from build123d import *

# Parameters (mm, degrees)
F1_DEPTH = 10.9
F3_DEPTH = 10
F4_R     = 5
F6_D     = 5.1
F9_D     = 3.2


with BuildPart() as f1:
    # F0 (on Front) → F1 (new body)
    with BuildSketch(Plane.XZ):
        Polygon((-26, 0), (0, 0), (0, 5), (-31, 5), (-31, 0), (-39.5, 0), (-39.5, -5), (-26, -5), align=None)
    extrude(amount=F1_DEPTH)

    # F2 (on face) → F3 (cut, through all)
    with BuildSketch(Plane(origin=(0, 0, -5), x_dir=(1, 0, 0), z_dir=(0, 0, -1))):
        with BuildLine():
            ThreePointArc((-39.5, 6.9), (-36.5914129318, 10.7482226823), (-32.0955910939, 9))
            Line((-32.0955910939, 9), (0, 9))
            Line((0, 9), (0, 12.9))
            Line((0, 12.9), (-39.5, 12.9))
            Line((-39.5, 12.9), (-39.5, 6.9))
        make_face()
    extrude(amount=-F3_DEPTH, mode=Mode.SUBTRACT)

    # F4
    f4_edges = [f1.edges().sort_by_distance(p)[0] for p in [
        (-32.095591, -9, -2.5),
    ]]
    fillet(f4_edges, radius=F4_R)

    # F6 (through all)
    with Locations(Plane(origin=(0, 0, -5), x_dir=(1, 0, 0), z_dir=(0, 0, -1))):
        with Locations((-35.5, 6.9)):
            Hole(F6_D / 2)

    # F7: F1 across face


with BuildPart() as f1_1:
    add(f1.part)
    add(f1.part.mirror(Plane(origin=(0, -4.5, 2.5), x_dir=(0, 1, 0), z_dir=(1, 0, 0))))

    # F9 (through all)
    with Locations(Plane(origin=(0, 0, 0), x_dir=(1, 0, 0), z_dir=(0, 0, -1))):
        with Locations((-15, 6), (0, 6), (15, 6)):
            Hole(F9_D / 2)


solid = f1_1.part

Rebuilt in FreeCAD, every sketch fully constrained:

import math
import FreeCAD as App
import Part
import Sketcher

V = App.Vector


def edges_at(feature, points):
    """Names of the edges that pass closest to the given points."""
    edges = feature.Shape.Edges
    near = lambda p: min(range(len(edges)), key=lambda i: edges[i].distToShape(Part.Vertex(*p))[0])
    return sorted({f"Edge{near(p) + 1}" for p in points})

doc = App.newDocument("Part")
params = doc.addObject("Spreadsheet::Sheet", "Params")
for row, (alias, value) in enumerate([
    ("sketch1_width", "26 mm"),
    ("sketch1_width2", "31 mm"),
    ("sketch1_height", "5 mm"),
    ("sketch1_width3", "8.5 mm"),
    ("pad1_length", "10.9 mm"),
    ("sketch2_radius", "4 mm"),
    ("sketch2_height", "6 mm"),
    ("sketch2_width", "39.5 mm"),
    ("sketch2_height2", "3.9 mm"),
    ("fillet_radius", "5 mm"),
    ("sketch3_diameter", "5.1 mm"),
    ("hole_diameter", "5.1 mm"),
    ("sketch4_diameter", "3.2 mm"),
    ("hole2_diameter", "3.2 mm"),
], start=1):
    params.set(f"A{row}", alias)
    params.set(f"B{row}", "=" + value)
    params.setAlias(f"B{row}", alias)

body = doc.addObject("PartDesign::Body", "Body")

# Sketch on XZ plane
sketch1 = doc.addObject("Sketcher::SketchObject", "Sketch")
body.addObject(sketch1)
sketch1.AttachmentSupport = (doc.XZ_Plane, [""])
sketch1.MapMode = "FlatFace"
sketch1.addGeometry([
    Part.LineSegment(V(-26, 0, 0), V(0, 0, 0)),  # 0
    Part.LineSegment(V(0, 0, 0), V(0, 5, 0)),  # 1
    Part.LineSegment(V(0, 5, 0), V(-31, 5, 0)),  # 2
    Part.LineSegment(V(-31, 5, 0), V(-31, 0, 0)),  # 3
    Part.LineSegment(V(-31, 0, 0), V(-40, 0, 0)),  # 4
    Part.LineSegment(V(-40, 0, 0), V(-40, -5, 0)),  # 5
    Part.LineSegment(V(-40, -5, 0), V(-26, -5, 0)),  # 6
    Part.LineSegment(V(-26, -5, 0), V(-26, 0, 0)),  # 7
], False)
sketch1.addConstraint([
    Sketcher.Constraint("Coincident", 0, 2, 1, 1),
    Sketcher.Constraint("Coincident", 1, 2, 2, 1),
    Sketcher.Constraint("Coincident", 2, 2, 3, 1),
    Sketcher.Constraint("Coincident", 3, 2, 4, 1),
    Sketcher.Constraint("Coincident", 4, 2, 5, 1),
    Sketcher.Constraint("Coincident", 5, 2, 6, 1),
    Sketcher.Constraint("Coincident", 6, 2, 7, 1),
    Sketcher.Constraint("Coincident", 7, 2, 0, 1),
    Sketcher.Constraint("Horizontal", 0),
    Sketcher.Constraint("Vertical", 1),
    Sketcher.Constraint("Horizontal", 2),
    Sketcher.Constraint("Vertical", 3),
    Sketcher.Constraint("Horizontal", 4),
    Sketcher.Constraint("Vertical", 5),
    Sketcher.Constraint("Horizontal", 6),
    Sketcher.Constraint("Vertical", 7),
    Sketcher.Constraint("Coincident", 0, 2, -1, 1),
    Sketcher.Constraint("PointOnObject", 3, 2, -1),
    Sketcher.Constraint("Equal", 3, 5),
    Sketcher.Constraint("DistanceX", 0, 1, 0, 2, 26.0),
    Sketcher.Constraint("DistanceX", 2, 2, 2, 1, 31.0),
    Sketcher.Constraint("DistanceY", 1, 1, 1, 2, 5.0),
    Sketcher.Constraint("DistanceX", 4, 2, 4, 1, 8.5),
])
sketch1.setExpression("Constraints[19]", "Params.sketch1_width")
sketch1.setExpression("Constraints[20]", "Params.sketch1_width2")
sketch1.setExpression("Constraints[21]", "Params.sketch1_height")
sketch1.setExpression("Constraints[22]", "Params.sketch1_width3")
pad1 = doc.addObject("PartDesign::Pad", "Pad")
body.addObject(pad1)
pad1.Profile = sketch1
pad1.setExpression("Length", "Params.pad1_length")

# Sketch on XY plane
sketch2 = doc.addObject("Sketcher::SketchObject", "Sketch001")
body.addObject(sketch2)
sketch2.AttachmentSupport = (doc.XY_Plane, [""])
sketch2.MapMode = "FlatFace"
sketch2.AttachmentOffset = App.Placement(V(0, 0, -5), App.Rotation())
sketch2.addGeometry([
    Part.ArcOfCircle(Part.Circle(V(-35.5, -6.9, 0), V(0, 0, 1), 4), math.radians(180), math.radians(328)),  # 0
    Part.LineSegment(V(-32.1, -9, 0), V(0, -9, 0)),  # 1
    Part.LineSegment(V(0, -9, 0), V(0, -12.9, 0)),  # 2
    Part.LineSegment(V(0, -12.9, 0), V(-39.5, -12.9, 0)),  # 3
    Part.LineSegment(V(-39.5, -12.9, 0), V(-39.5, -6.9, 0)),  # 4
], False)
sketch2.addConstraint([
    Sketcher.Constraint("Coincident", 0, 2, 1, 1),
    Sketcher.Constraint("Coincident", 1, 2, 2, 1),
    Sketcher.Constraint("Coincident", 2, 2, 3, 1),
    Sketcher.Constraint("Coincident", 3, 2, 4, 1),
    Sketcher.Constraint("Tangent", 4, 2, 0, 1),
    Sketcher.Constraint("Horizontal", 1),
    Sketcher.Constraint("Vertical", 2),
    Sketcher.Constraint("Horizontal", 3),
    Sketcher.Constraint("Vertical", 4),
    Sketcher.Constraint("PointOnObject", 1, 2, -2),
    Sketcher.Constraint("Radius", 0, 4.0),
    Sketcher.Constraint("DistanceY", 4, 1, 4, 2, 6.0),
    Sketcher.Constraint("DistanceX", 3, 2, 3, 1, 39.5),
    Sketcher.Constraint("DistanceY", 2, 2, 2, 1, 3.9),
    Sketcher.Constraint("DistanceY", 0, 2, -1, 1, 9.0),
])
sketch2.setExpression("Constraints[10]", "Params.sketch2_radius")
sketch2.setExpression("Constraints[11]", "Params.sketch2_height")
sketch2.setExpression("Constraints[12]", "Params.sketch2_width")
sketch2.setExpression("Constraints[13]", "Params.sketch2_height2")
pocket1 = doc.addObject("PartDesign::Pocket", "Pocket")
body.addObject(pocket1)
pocket1.Profile = sketch2
pocket1.Type = "ThroughAll"
pocket1.Reversed = True
doc.recompute()

fillet = doc.addObject("PartDesign::Fillet", "Fillet")
body.addObject(fillet)
fillet.Base = (pocket1, edges_at(pocket1, [(-32.096, -9, -2.5)]))
fillet.setExpression("Radius", "Params.fillet_radius")

# Sketch on XY plane
sketch3 = doc.addObject("Sketcher::SketchObject", "Sketch002")
body.addObject(sketch3)
sketch3.AttachmentSupport = (doc.XY_Plane, [""])
sketch3.MapMode = "FlatFace"
sketch3.AttachmentOffset = App.Placement(V(0, 0, -5), App.Rotation())
sketch3.addGeometry(Part.Circle(V(-35.5, -6.9, 0), V(0, 0, 1), 2.5), False)
sketch3.addConstraint([
    Sketcher.Constraint("Diameter", 0, 5.1),
    Sketcher.Constraint("DistanceX", 0, 3, -1, 1, 35.5),
    Sketcher.Constraint("DistanceY", 0, 3, -1, 1, 6.9),
])
sketch3.setExpression("Constraints[0]", "Params.sketch3_diameter")
doc.recompute()
hole = doc.addObject("PartDesign::Hole", "Hole")
body.addObject(hole)
hole.Profile = sketch3
hole.ThreadType = "None"
hole.setExpression("Diameter", "Params.hole_diameter")
hole.DepthType = "ThroughAll"
hole.Reversed = True
body2 = doc.addObject("PartDesign::Body", "Body001")
doc.recompute()

body2.BaseFeature = body
doc.recompute()

mirroring = doc.addObject("Part::Mirroring", "Mirroring")
mirroring.Source = body
mirroring.Base = V(0, -4.5, 2.5)
mirroring.Normal = V(1, 0, 0)
body3 = doc.addObject("PartDesign::Body", "Body002")
body3.BaseFeature = mirroring
boolean = doc.addObject("PartDesign::Boolean", "Boolean")
body2.addObject(boolean)
boolean.Type = "Fuse"
boolean.addObjects([body3])
doc.recompute()

# Sketch on XY plane
sketch4 = doc.addObject("Sketcher::SketchObject", "Sketch003")
body2.addObject(sketch4)
sketch4.AttachmentSupport = (doc.getObject("XY_Plane001"), [""])
sketch4.MapMode = "FlatFace"
sketch4.addGeometry([
    Part.Circle(V(-15, -6, 0), V(0, 0, 1), 1.6),
    Part.Circle(V(0, -6, 0), V(0, 0, 1), 1.6),
    Part.Circle(V(15, -6, 0), V(0, 0, 1), 1.6),
], False)
sketch4.addConstraint([
    Sketcher.Constraint("Equal", 0, 1),
    Sketcher.Constraint("Equal", 1, 2),
    Sketcher.Constraint("Symmetric", 0, 3, 2, 3, -2),
    Sketcher.Constraint("PointOnObject", 1, 3, -2),
    Sketcher.Constraint("Horizontal", 0, 3, 1, 3),
    Sketcher.Constraint("Diameter", 0, 3.2),
    Sketcher.Constraint("DistanceX", 0, 3, -1, 1, 15.0),
    Sketcher.Constraint("DistanceY", 0, 3, -1, 1, 6.0),
])
sketch4.setExpression("Constraints[5]", "Params.sketch4_diameter")
doc.recompute()
hole2 = doc.addObject("PartDesign::Hole", "Hole001")
body2.addObject(hole2)
hole2.Profile = sketch4
hole2.ThreadType = "None"
hole2.setExpression("Diameter", "Params.hole2_diameter")
hole2.DepthType = "ThroughAll"
hole2.Reversed = True
mirroring.Visibility = False

doc.recompute()
